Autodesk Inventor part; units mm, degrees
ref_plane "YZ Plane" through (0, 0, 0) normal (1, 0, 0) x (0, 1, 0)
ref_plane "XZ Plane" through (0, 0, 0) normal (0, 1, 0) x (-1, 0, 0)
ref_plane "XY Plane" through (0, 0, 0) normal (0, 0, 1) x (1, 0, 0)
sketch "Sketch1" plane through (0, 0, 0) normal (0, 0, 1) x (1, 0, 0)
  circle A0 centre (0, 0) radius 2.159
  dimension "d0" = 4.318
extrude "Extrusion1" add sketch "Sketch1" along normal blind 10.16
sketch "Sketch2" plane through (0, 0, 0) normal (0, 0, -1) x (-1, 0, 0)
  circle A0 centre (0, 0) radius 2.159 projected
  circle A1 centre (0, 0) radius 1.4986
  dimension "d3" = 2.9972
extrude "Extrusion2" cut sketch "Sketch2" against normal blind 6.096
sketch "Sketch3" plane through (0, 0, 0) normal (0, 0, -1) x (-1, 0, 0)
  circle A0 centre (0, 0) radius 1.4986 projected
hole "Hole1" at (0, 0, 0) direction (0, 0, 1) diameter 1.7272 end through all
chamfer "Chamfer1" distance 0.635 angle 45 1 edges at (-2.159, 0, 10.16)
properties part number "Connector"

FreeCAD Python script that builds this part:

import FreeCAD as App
import Part
import Sketcher
from FreeCAD import Vector
Q = App.Units.Quantity


def edges_at(feature, points):
    """Names of the edges that pass closest to the given points."""
    edges = feature.Shape.Edges
    near = lambda p: min(range(len(edges)), key=lambda i: edges[i].distToShape(Part.Vertex(*p))[0])
    return sorted({f"Edge{near(p) + 1}" for p in points})

doc = App.newDocument("Part")
body = doc.addObject("PartDesign::Body", "Body")

# Sketch on XY plane
sketch1 = body.newObject("Sketcher::SketchObject", "Sketch")
sketch1.AttachmentSupport = (doc.getObject("XY_Plane"), [""])
sketch1.MapMode = "FlatFace"
sketch1.addGeometry(Part.Circle(Vector(0, 0, 0), Vector(0, 0, 1), 2.2), False)
sketch1.addConstraint([
    Sketcher.Constraint("Coincident", 0, 3, -1, 1),
    Sketcher.Constraint("Diameter", 0, Q("0.17 in")),
])
pad1 = body.newObject("PartDesign::Pad", "Pad")
pad1.Profile = sketch1
pad1.Length = Q("0.4 in")

# Sketch on XY plane
sketch2 = body.newObject("Sketcher::SketchObject", "Sketch001")
sketch2.AttachmentSupport = (doc.getObject("XY_Plane"), [""])
sketch2.MapMode = "FlatFace"
sketch2.addGeometry([
    Part.Circle(Vector(0, 0, 0), Vector(0, 0, 1), 2.2),
    Part.Circle(Vector(0, 0, 0), Vector(0, 0, 1), 1.5),
], False)
sketch2.addConstraint([
    Sketcher.Constraint("Coincident", 0, 3, -1, 1),
    Sketcher.Constraint("Coincident", 1, 3, -1, 1),
    Sketcher.Constraint("Diameter", 1, Q("0.118 in")),
    Sketcher.Constraint("Diameter", 0, Q("0.17 in")),
])
pocket1 = body.newObject("PartDesign::Pocket", "Pocket")
pocket1.Profile = sketch2
pocket1.Length = Q("0.24 in")
pocket1.Reversed = True

# Sketch on XY plane
sketch3 = body.newObject("Sketcher::SketchObject", "Sketch002")
sketch3.AttachmentSupport = (doc.getObject("XY_Plane"), [""])
sketch3.MapMode = "FlatFace"
sketch3.addGeometry(Part.Circle(Vector(0, 0, 0), Vector(0, 0, 1), 0.9), False)
sketch3.addConstraint([
    Sketcher.Constraint("Coincident", 0, 3, -1, 1),
    Sketcher.Constraint("Diameter", 0, Q("0.068 in")),
])
doc.recompute()
hole = body.newObject("PartDesign::Hole", "Hole")
hole.Profile = sketch3
hole.ThreadType = "None"
hole.Diameter = Q("0.068 in")
hole.DepthType = "ThroughAll"
hole.Reversed = True
doc.recompute()

chamfer = body.newObject("PartDesign::Chamfer", "Chamfer")
chamfer.Base = (hole, edges_at(hole, [(-2.159, 0, 10.16)]))
chamfer.Size = Q("0.025 in")

doc.recompute()
